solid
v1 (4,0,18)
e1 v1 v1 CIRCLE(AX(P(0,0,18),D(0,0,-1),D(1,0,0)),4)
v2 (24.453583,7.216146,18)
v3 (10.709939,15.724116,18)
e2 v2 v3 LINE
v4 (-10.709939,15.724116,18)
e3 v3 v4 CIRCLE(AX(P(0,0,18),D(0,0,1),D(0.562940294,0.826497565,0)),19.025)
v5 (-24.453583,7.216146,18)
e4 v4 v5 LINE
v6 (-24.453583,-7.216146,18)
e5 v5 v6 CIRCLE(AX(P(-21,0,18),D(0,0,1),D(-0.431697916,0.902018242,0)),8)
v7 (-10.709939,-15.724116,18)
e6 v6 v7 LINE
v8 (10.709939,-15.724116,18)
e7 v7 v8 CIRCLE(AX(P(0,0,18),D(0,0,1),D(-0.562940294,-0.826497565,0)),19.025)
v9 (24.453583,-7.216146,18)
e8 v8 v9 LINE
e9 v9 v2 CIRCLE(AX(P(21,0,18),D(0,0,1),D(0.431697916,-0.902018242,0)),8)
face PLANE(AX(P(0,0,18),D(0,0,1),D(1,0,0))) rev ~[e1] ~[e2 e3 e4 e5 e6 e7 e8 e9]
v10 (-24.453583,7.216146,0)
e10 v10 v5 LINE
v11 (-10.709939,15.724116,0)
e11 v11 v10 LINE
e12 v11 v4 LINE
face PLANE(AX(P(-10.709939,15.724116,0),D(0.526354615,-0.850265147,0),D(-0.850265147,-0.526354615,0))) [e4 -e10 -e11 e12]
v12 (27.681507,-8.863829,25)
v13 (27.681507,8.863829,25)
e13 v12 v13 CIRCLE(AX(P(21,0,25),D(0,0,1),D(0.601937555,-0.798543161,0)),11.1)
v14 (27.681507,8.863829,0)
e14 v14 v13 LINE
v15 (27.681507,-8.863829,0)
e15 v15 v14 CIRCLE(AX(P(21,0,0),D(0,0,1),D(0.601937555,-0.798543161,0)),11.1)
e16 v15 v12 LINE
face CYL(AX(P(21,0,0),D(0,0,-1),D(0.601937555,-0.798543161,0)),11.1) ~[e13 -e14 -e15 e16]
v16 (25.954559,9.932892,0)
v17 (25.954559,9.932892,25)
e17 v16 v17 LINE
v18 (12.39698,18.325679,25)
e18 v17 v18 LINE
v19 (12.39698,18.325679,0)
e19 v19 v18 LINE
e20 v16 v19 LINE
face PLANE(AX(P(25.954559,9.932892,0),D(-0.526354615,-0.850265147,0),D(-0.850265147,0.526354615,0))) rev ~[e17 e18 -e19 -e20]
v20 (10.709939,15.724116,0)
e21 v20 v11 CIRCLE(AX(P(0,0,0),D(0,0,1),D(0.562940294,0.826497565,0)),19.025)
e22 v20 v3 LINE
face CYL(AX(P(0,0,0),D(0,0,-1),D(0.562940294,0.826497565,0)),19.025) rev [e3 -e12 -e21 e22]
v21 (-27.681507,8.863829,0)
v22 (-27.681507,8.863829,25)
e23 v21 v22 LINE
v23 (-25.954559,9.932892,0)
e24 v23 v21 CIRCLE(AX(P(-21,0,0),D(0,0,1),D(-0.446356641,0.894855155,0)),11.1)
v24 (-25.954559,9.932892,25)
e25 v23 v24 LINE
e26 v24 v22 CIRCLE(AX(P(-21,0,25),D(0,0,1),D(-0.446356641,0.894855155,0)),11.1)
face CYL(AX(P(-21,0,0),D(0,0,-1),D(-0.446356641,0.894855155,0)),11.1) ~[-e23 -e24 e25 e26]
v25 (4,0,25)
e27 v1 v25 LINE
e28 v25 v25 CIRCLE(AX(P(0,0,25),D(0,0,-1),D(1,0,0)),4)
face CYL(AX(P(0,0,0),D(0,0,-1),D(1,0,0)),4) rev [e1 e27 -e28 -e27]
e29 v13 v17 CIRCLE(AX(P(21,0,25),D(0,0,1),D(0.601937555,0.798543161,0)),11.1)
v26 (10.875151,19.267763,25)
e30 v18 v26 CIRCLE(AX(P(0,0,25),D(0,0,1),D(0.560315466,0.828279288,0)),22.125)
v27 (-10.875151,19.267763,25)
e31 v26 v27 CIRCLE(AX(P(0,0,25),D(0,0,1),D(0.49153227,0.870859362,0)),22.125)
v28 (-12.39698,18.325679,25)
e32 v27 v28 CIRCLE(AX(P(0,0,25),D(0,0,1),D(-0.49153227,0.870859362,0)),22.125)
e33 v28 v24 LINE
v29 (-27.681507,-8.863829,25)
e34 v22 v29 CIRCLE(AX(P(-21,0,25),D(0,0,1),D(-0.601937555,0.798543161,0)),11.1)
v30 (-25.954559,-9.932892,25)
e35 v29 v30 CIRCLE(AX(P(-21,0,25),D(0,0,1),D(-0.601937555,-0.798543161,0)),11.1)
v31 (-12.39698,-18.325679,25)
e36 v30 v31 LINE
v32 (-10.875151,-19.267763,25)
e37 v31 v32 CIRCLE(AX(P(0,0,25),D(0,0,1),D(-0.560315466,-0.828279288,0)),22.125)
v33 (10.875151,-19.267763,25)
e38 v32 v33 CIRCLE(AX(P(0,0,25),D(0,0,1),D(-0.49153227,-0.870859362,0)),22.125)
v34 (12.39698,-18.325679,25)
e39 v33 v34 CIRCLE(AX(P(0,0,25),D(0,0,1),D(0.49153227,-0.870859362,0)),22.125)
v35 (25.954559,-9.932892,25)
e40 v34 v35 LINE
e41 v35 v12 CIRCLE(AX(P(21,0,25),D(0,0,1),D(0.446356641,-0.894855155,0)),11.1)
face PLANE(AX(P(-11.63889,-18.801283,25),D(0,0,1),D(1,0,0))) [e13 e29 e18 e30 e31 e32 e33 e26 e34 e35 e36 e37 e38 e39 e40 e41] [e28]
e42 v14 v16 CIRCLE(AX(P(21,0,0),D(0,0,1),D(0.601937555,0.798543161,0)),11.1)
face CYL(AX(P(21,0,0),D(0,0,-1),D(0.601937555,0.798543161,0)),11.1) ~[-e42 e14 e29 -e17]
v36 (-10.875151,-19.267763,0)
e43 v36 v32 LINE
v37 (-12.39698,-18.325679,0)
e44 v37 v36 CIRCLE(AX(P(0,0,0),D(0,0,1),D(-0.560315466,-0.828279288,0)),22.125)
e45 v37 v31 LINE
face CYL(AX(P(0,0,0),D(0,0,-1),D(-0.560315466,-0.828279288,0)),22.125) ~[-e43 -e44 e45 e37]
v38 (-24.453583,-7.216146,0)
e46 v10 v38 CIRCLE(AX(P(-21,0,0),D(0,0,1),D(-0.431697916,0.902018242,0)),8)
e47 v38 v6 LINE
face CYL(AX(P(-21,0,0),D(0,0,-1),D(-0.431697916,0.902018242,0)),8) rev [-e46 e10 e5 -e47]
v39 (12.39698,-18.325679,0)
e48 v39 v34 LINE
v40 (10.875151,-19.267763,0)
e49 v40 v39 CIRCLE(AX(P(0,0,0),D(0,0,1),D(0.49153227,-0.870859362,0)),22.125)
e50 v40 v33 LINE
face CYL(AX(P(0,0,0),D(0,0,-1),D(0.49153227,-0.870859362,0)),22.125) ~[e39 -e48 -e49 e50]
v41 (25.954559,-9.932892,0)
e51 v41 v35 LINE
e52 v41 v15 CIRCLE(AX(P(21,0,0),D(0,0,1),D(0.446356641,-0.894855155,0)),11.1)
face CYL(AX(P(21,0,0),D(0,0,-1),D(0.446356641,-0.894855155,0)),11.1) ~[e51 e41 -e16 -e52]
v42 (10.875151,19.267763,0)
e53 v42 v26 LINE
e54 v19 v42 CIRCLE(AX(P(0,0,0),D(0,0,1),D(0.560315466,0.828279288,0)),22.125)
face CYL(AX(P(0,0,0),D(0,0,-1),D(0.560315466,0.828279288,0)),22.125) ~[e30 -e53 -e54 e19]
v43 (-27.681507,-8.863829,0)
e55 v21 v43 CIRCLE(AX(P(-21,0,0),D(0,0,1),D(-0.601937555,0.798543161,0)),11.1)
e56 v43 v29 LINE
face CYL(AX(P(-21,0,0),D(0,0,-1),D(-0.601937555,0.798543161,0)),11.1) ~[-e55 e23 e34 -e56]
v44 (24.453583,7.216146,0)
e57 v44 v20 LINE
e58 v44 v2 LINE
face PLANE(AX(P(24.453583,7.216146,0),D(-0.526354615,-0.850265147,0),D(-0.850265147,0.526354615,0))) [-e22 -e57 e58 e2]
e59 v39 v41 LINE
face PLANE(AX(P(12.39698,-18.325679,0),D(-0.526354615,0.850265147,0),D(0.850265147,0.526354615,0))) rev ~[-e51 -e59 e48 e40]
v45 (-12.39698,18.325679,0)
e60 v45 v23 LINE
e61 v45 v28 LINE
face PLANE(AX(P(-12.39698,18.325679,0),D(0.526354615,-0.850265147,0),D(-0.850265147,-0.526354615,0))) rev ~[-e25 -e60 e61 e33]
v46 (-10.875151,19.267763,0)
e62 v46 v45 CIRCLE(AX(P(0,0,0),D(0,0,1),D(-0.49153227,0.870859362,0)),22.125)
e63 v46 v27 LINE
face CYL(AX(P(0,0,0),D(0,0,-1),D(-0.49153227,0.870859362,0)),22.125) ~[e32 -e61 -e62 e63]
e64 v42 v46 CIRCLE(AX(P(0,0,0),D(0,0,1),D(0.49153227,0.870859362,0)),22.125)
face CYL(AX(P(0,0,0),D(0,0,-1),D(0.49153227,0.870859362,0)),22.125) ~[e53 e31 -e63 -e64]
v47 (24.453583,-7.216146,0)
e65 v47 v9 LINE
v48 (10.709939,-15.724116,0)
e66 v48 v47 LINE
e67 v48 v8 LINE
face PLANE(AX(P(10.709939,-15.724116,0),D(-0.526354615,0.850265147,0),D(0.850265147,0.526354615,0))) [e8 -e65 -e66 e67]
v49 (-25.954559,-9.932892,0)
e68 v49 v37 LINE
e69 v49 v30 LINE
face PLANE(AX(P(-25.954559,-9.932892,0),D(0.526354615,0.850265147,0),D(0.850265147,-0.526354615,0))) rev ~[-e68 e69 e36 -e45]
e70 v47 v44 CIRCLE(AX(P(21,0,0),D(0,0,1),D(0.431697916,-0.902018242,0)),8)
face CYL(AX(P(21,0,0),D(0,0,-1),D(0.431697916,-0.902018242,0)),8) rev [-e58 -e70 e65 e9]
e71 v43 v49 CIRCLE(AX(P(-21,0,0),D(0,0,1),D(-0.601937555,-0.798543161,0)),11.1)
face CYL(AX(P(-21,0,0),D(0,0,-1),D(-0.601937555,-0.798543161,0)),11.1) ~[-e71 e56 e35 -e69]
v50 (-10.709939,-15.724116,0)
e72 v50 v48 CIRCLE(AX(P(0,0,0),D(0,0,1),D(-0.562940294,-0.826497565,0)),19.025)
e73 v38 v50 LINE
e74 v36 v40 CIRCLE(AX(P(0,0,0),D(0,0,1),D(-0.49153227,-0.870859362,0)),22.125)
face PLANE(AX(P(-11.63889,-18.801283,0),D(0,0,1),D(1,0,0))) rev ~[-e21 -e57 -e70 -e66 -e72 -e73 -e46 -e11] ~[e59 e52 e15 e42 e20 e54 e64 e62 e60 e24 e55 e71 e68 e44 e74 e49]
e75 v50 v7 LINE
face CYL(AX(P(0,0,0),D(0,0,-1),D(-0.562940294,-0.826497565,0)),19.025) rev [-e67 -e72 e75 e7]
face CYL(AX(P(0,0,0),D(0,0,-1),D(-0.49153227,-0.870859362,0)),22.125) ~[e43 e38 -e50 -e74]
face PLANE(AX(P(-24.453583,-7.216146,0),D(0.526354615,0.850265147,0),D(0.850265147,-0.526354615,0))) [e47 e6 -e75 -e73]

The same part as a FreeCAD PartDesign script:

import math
import FreeCAD as App
import Part
import Sketcher
from FreeCAD import Vector
Q = App.Units.Quantity

doc = App.newDocument("Part")
body = doc.addObject("PartDesign::Body", "Body")

sketch1 = body.newObject("Sketcher::SketchObject", "Sketch")
sketch1.AttachmentSupport = (doc.getObject("XY_Plane"), [""])
sketch1.MapMode = "FlatFace"
sketch1.addGeometry([
    Part.ArcOfCircle(Part.Circle(Vector(0, 0, 0), Vector(0, 0, 1), 22.1), math.radians(-124.08), math.radians(-119.44)),
    Part.ArcOfCircle(Part.Circle(Vector(0, 0, 0), Vector(0, 0, 1), 22.1), math.radians(-119), math.radians(-61)),
    Part.ArcOfCircle(Part.Circle(Vector(0, 0, 0), Vector(0, 0, 1), 22.1), math.radians(-60.56), math.radians(-55.92)),
    Part.LineSegment(Vector(12.4, -18.3, 0), Vector(26, -9.9, 0)),
    Part.ArcOfCircle(Part.Circle(Vector(21, 0, 0), Vector(0, 0, 1), 11.1), math.radians(-63.49), math.radians(-52.99)),
    Part.ArcOfCircle(Part.Circle(Vector(21, 0, 0), Vector(0, 0, 1), 11.1), math.radians(-53), math.radians(53)),
    Part.ArcOfCircle(Part.Circle(Vector(21, 0, 0), Vector(0, 0, 1), 11.1), math.radians(52.99), math.radians(63.49)),
    Part.LineSegment(Vector(26, 9.9, 0), Vector(12.4, 18.3, 0)),
    Part.ArcOfCircle(Part.Circle(Vector(0, 0, 0), Vector(0, 0, 1), 22.1), math.radians(55.92), math.radians(60.56)),
    Part.ArcOfCircle(Part.Circle(Vector(0, 0, 0), Vector(0, 0, 1), 22.1), math.radians(61), math.radians(119)),
    Part.ArcOfCircle(Part.Circle(Vector(0, 0, 0), Vector(0, 0, 1), 22.1), math.radians(119.44), math.radians(124.08)),
    Part.LineSegment(Vector(-12.4, 18.3, 0), Vector(-26, 9.9, 0)),
    Part.ArcOfCircle(Part.Circle(Vector(-21, 0, 0), Vector(0, 0, 1), 11.1), math.radians(116.51), math.radians(127.01)),
    Part.ArcOfCircle(Part.Circle(Vector(-21, 0, 0), Vector(0, 0, 1), 11.1), math.radians(127), math.radians(233)),
    Part.ArcOfCircle(Part.Circle(Vector(-21, 0, 0), Vector(0, 0, 1), 11.1), math.radians(-127.01), math.radians(-116.51)),
    Part.LineSegment(Vector(-26, -9.9, 0), Vector(-12.4, -18.3, 0)),
], False)
sketch1.addConstraint([
    Sketcher.Constraint("Tangent", 0, 2, 1, 1),
    Sketcher.Constraint("Tangent", 1, 2, 2, 1),
    Sketcher.Constraint("Coincident", 2, 2, 3, 1),
    Sketcher.Constraint("Coincident", 3, 2, 4, 1),
    Sketcher.Constraint("Tangent", 4, 2, 5, 1),
    Sketcher.Constraint("Tangent", 5, 2, 6, 1),
    Sketcher.Constraint("Coincident", 6, 2, 7, 1),
    Sketcher.Constraint("Coincident", 7, 2, 8, 1),
    Sketcher.Constraint("Tangent", 8, 2, 9, 1),
    Sketcher.Constraint("Tangent", 9, 2, 10, 1),
    Sketcher.Constraint("Coincident", 10, 2, 11, 1),
    Sketcher.Constraint("Coincident", 11, 2, 12, 1),
    Sketcher.Constraint("Tangent", 12, 2, 13, 1),
    Sketcher.Constraint("Tangent", 13, 2, 14, 1),
    Sketcher.Constraint("Coincident", 14, 2, 15, 1),
    Sketcher.Constraint("Coincident", 15, 2, 0, 1),
    Sketcher.Constraint("Coincident", 0, 3, -1, 1),
    Sketcher.Constraint("Coincident", 2, 3, -1, 1),
    Sketcher.Constraint("Coincident", 8, 3, -1, 1),
    Sketcher.Constraint("Coincident", 10, 3, -1, 1),
    Sketcher.Constraint("Coincident", 6, 3, 4, 3),
    Sketcher.Constraint("Coincident", 14, 3, 12, 3),
    Sketcher.Constraint("Equal", 2, 8),
    Sketcher.Constraint("Equal", 6, 12),
    Sketcher.Constraint("Symmetric", 4, 3, 12, 3, -1, 1),
    Sketcher.Constraint("Symmetric", 6, 2, 11, 2, -2),
    Sketcher.Constraint("Parallel", 3, 11),
    Sketcher.Constraint("Parallel", 7, 15),
    Sketcher.Constraint("Horizontal", 0, 2, 1, 2),
    Sketcher.Constraint("Horizontal", 8, 2, 9, 2),
    Sketcher.Constraint("Horizontal", 7, 2, 10, 2),
    Sketcher.Constraint("Horizontal", 5, 2, 12, 2),
    Sketcher.Constraint("Horizontal", 4, 2, 13, 2),
    Sketcher.Constraint("Horizontal", 3, 2, 14, 2),
    Sketcher.Constraint("Vertical", 4, 2, 5, 2),
    Sketcher.Constraint("Vertical", 3, 2, 6, 2),
    Sketcher.Constraint("Vertical", 1, 2, 8, 2),
    Sketcher.Constraint("Radius", 4, Q("11.1 mm")),
    Sketcher.Constraint("DistanceX", -1, 1, 4, 3, Q("21 mm")),
    Sketcher.Constraint("Radius", 0, Q("22.125 mm")),
    Sketcher.Constraint("Distance", 3, Q("15.945119 mm")),
    Sketcher.Constraint("DistanceX", 0, 2, -1, 1, Q("10.875151 mm")),
    Sketcher.Constraint("DistanceX", -1, 1, 2, 2, Q("12.39698 mm")),
    Sketcher.Constraint("DistanceY", 4, 2, -1, 1, Q("8.863829 mm")),
])
pad1 = body.newObject("PartDesign::Pad", "Pad")
pad1.Profile = sketch1
pad1.Length = 25

sketch2 = body.newObject("Sketcher::SketchObject", "Sketch001")
sketch2.AttachmentSupport = (doc.getObject("XY_Plane"), [""])
sketch2.MapMode = "FlatFace"
sketch2.addGeometry([
    Part.ArcOfCircle(Part.Circle(Vector(-21, 0, 0), Vector(0, 0, 1), 8), math.radians(116), math.radians(244)),
    Part.LineSegment(Vector(-24, -7, 0), Vector(-11, -16, 0)),
    Part.ArcOfCircle(Part.Circle(Vector(0, 0, 0), Vector(0, 0, 1), 19), math.radians(-124), math.radians(-56)),
    Part.LineSegment(Vector(11, -16, 0), Vector(24, -7, 0)),
    Part.ArcOfCircle(Part.Circle(Vector(21, 0, 0), Vector(0, 0, 1), 8), math.radians(-64), math.radians(64)),
    Part.LineSegment(Vector(24, 7, 0), Vector(11, 16, 0)),
    Part.ArcOfCircle(Part.Circle(Vector(0, 0, 0), Vector(0, 0, 1), 19), math.radians(56), math.radians(124)),
    Part.LineSegment(Vector(-11, 16, 0), Vector(-24, 7, 0)),
], False)
sketch2.addConstraint([
    Sketcher.Constraint("Coincident", 0, 2, 1, 1),
    Sketcher.Constraint("Coincident", 1, 2, 2, 1),
    Sketcher.Constraint("Coincident", 2, 2, 3, 1),
    Sketcher.Constraint("Coincident", 3, 2, 4, 1),
    Sketcher.Constraint("Coincident", 4, 2, 5, 1),
    Sketcher.Constraint("Coincident", 5, 2, 6, 1),
    Sketcher.Constraint("Coincident", 6, 2, 7, 1),
    Sketcher.Constraint("Coincident", 7, 2, 0, 1),
    Sketcher.Constraint("Coincident", 2, 3, -1, 1),
    Sketcher.Constraint("Coincident", 6, 3, -1, 1),
    Sketcher.Constraint("Equal", 0, 4),
    Sketcher.Constraint("Equal", 2, 6),
    Sketcher.Constraint("Symmetric", 0, 3, 4, 3, -1, 1),
    Sketcher.Constraint("Symmetric", 0, 2, 3, 2, -2),
    Sketcher.Constraint("Parallel", 1, 5),
    Sketcher.Constraint("Parallel", 3, 7),
    Sketcher.Constraint("Horizontal", 1, 2, 2, 2),
    Sketcher.Constraint("Horizontal", 5, 2, 6, 2),
    Sketcher.Constraint("Vertical", 3, 2, 4, 2),
    Sketcher.Constraint("Radius", 0, Q("8 mm")),
    Sketcher.Constraint("DistanceX", 0, 3, -1, 1, Q("21 mm")),
    Sketcher.Constraint("Radius", 2, Q("19.025 mm")),
    Sketcher.Constraint("Distance", 1, Q("16.163951 mm")),
    Sketcher.Constraint("DistanceX", 1, 2, -1, 1, Q("10.709939 mm")),
])
pocket1 = body.newObject("PartDesign::Pocket", "Pocket")
pocket1.Profile = sketch2
pocket1.Length = 18
pocket1.Reversed = True

sketch3 = body.newObject("Sketcher::SketchObject", "Sketch002")
sketch3.AttachmentSupport = (doc.getObject("XY_Plane"), [""])
sketch3.MapMode = "FlatFace"
sketch3.addGeometry(Part.Circle(Vector(0, 0, 0), Vector(0, 0, 1), 4), False)
sketch3.addConstraint([
    Sketcher.Constraint("Coincident", 0, 3, -1, 1),
    Sketcher.Constraint("Diameter", 0, Q("8 mm")),
])
pocket2 = body.newObject("PartDesign::Pocket", "Pocket001")
pocket2.Profile = sketch3
pocket2.Type = "ThroughAll"
pocket2.Reversed = True

doc.recompute()
